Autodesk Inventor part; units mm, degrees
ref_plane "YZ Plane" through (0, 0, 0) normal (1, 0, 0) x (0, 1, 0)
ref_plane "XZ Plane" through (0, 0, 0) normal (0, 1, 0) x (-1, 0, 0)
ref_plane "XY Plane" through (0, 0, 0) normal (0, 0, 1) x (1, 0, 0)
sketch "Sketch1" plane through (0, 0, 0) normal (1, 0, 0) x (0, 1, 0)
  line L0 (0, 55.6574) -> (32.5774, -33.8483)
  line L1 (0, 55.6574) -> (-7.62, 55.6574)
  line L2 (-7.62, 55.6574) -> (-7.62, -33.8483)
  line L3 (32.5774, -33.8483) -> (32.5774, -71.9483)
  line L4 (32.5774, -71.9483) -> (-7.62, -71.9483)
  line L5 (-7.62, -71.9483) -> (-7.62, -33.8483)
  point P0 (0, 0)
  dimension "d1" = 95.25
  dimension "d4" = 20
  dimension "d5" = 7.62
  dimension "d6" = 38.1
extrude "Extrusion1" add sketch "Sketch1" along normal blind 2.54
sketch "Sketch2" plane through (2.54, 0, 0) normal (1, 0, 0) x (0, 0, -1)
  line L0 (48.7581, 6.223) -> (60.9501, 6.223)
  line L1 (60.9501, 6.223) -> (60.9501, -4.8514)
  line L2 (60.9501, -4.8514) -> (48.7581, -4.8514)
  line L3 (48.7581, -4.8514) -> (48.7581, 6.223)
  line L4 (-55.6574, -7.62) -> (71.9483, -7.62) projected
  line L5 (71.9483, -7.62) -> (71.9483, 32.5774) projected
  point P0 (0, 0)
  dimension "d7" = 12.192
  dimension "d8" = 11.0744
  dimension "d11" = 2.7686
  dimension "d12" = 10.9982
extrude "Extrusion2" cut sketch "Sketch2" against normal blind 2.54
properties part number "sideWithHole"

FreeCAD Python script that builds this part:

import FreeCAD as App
import Part
import Sketcher

V = App.Vector
Q = App.Units.Quantity


def add_polygon(sketch, points):
    """Adds a closed chain of lines whose ends are joined by coincident constraints."""
    first, n = sketch.GeometryCount, len(points)
    for a, b in zip(points, points[1:] + points[:1]):
        sketch.addGeometry(Part.LineSegment(App.Vector(*a, 0), App.Vector(*b, 0)), False)
    for i in range(n):
        sketch.addConstraint(Sketcher.Constraint("Coincident", first + i, 2, first + (i + 1) % n, 1))

doc = App.newDocument("Part")
body = doc.addObject("PartDesign::Body", "Body")

# Sketch on YZ plane
sketch1 = body.newObject("Sketcher::SketchObject", "Sketch")
sketch1.AttachmentSupport = (doc.getObject("YZ_Plane"), [""])
sketch1.MapMode = "FlatFace"
add_polygon(sketch1, [(33, -34), (0, 56), (-8, 56), (-8, -72), (33, -72)])  # lines 0-4
sketch1.addConstraint(Sketcher.Constraint("Horizontal", 1))
sketch1.addConstraint(Sketcher.Constraint("Vertical", 2))
sketch1.addConstraint(Sketcher.Constraint("Horizontal", 3))
sketch1.addConstraint(Sketcher.Constraint("Vertical", 4))
sketch1.addConstraint(Sketcher.Constraint("PointOnObject", 0, 2, -2))
sketch1.addConstraint(Sketcher.Constraint("DistanceX", 1, 2, 1, 1, Q("0.3 in")))
sketch1.addConstraint(Sketcher.Constraint("DistanceY", 4, 1, 4, 2, Q("1.5 in")))
sketch1.addConstraint(Sketcher.Constraint("Distance", 0, Q("3.75 in")))
sketch1.addConstraint(Sketcher.Constraint("Angle", 0, Q("110 deg")))
sketch1.addConstraint(Sketcher.Constraint("DistanceY", 2, 2, -1, 1, Q("2.8326 in")))
pad1 = body.newObject("PartDesign::Pad", "Pad")
pad1.Profile = sketch1
pad1.Length = Q("0.1 in")

# Sketch on YZ plane
sketch2 = body.newObject("Sketcher::SketchObject", "Sketch001")
sketch2.AttachmentSupport = (doc.getObject("YZ_Plane"), [""])
sketch2.MapMode = "FlatFace"
sketch2.AttachmentOffset = App.Placement(V(0, 0, 0.1 * 25.4), App.Rotation())
add_polygon(sketch2, [(6, -61), (6, -49), (-5, -49), (-5, -61)])  # lines 0-3
sketch2.addConstraint(Sketcher.Constraint("Vertical", 0))
sketch2.addConstraint(Sketcher.Constraint("Horizontal", 1))
sketch2.addConstraint(Sketcher.Constraint("Vertical", 2))
sketch2.addConstraint(Sketcher.Constraint("Horizontal", 3))
sketch2.addConstraint(Sketcher.Constraint("DistanceY", 0, 1, 0, 2, Q("0.48 in")))
sketch2.addConstraint(Sketcher.Constraint("DistanceX", 1, 2, 1, 1, Q("0.436 in")))
sketch2.addConstraint(Sketcher.Constraint("DistanceX", -1, 1, 0, 2, Q("0.245 in")))
sketch2.addConstraint(Sketcher.Constraint("DistanceY", 0, 2, -1, 1, Q("1.9196 in")))
pocket1 = body.newObject("PartDesign::Pocket", "Pocket")
pocket1.Profile = sketch2
pocket1.Length = Q("0.1 in")

doc.recompute()
